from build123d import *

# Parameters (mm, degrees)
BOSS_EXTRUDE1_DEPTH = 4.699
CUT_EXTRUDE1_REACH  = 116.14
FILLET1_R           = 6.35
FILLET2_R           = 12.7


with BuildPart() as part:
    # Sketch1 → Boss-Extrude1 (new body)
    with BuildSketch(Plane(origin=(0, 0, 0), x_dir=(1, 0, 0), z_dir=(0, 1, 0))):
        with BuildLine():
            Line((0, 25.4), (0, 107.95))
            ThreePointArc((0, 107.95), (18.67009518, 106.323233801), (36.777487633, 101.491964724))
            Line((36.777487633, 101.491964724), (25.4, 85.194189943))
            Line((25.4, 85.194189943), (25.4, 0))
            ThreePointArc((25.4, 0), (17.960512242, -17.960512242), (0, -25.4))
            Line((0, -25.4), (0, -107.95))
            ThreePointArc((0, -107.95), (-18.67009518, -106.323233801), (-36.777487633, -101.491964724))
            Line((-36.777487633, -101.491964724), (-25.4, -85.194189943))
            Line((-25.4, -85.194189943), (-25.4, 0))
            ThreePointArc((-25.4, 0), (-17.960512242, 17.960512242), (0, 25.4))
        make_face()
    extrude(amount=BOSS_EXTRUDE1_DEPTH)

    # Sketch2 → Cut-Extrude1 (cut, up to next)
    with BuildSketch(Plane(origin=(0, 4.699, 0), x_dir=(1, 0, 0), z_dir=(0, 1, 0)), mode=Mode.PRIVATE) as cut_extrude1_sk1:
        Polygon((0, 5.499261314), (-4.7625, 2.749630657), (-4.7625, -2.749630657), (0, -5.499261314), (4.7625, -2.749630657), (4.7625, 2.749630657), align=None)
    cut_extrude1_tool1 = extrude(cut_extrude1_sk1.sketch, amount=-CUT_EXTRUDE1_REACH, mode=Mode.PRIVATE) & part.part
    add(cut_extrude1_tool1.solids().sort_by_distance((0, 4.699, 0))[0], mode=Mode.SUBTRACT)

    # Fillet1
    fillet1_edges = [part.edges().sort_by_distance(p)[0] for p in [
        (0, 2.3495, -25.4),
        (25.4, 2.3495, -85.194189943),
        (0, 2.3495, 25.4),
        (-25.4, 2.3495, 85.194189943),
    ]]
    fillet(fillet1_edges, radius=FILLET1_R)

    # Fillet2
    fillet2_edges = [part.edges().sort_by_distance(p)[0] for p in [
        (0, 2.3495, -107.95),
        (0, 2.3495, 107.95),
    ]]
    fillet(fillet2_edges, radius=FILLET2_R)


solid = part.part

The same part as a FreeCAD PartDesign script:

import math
import FreeCAD as App
import Part
import Sketcher
from FreeCAD import Vector
Q = App.Units.Quantity


def edges_at(feature, points):
    """Names of the edges that pass closest to the given points."""
    edges = feature.Shape.Edges
    near = lambda p: min(range(len(edges)), key=lambda i: edges[i].distToShape(Part.Vertex(*p))[0])
    return sorted({f"Edge{near(p) + 1}" for p in points})

doc = App.newDocument("Part")
body = doc.addObject("PartDesign::Body", "Body")

# Sketch on XZ plane
sketch1 = body.newObject("Sketcher::SketchObject", "Sketch")
sketch1.AttachmentSupport = (doc.getObject("XZ_Plane"), [""])
sketch1.MapMode = "FlatFace"
sketch1.addGeometry(Part.LineSegment(Vector(0, -107.95, 0), Vector(0, -25.4, 0)), False)
sketch1.addGeometry(Part.ArcOfCircle(Part.Circle(Vector(0, 0, 0), Vector(0, 0, 1), 25.4), math.radians(180), math.radians(270)), False)
sketch1.addGeometry(Part.LineSegment(Vector(-25.4, 0, 0), Vector(-25.4, 85.19419, 0)), False)
sketch1.addGeometry(Part.LineSegment(Vector(-25.4, 85.19419, 0), Vector(-36.777488, 101.491965, 0)), False)
sketch1.addGeometry(Part.ArcOfCircle(Part.Circle(Vector(0, 0, 0), Vector(0, 0, 1), 107.95), math.radians(90), math.radians(109.918919)), False)
sketch1.addGeometry(Part.LineSegment(Vector(0, 107.95, 0), Vector(0, 25.4, 0)), False)
sketch1.addGeometry(Part.ArcOfCircle(Part.Circle(Vector(0, 0, 0), Vector(0, 0, 1), 25.4), math.radians(0), math.radians(90)), False)
sketch1.addGeometry(Part.LineSegment(Vector(25.4, 0, 0), Vector(25.4, -85.19419, 0)), False)
sketch1.addGeometry(Part.LineSegment(Vector(25.4, -85.19419, 0), Vector(36.777488, -101.491965, 0)), False)
sketch1.addGeometry(Part.ArcOfCircle(Part.Circle(Vector(0, 0, 0), Vector(0, 0, 1), 107.95), math.radians(-90), math.radians(-70.081081)), False)
sketch1.addConstraint(Sketcher.Constraint("Coincident", 0, 2, 1, 2))
sketch1.addConstraint(Sketcher.Constraint("Tangent", 1, 1, 2, 1))
sketch1.addConstraint(Sketcher.Constraint("Coincident", 2, 2, 3, 1))
sketch1.addConstraint(Sketcher.Constraint("Coincident", 3, 2, 4, 2))
sketch1.addConstraint(Sketcher.Constraint("Coincident", 4, 1, 5, 1))
sketch1.addConstraint(Sketcher.Constraint("Coincident", 5, 2, 6, 2))
sketch1.addConstraint(Sketcher.Constraint("Tangent", 6, 1, 7, 1))
sketch1.addConstraint(Sketcher.Constraint("Coincident", 7, 2, 8, 1))
sketch1.addConstraint(Sketcher.Constraint("Coincident", 8, 2, 9, 2))
sketch1.addConstraint(Sketcher.Constraint("Coincident", 9, 1, 0, 1))
sketch1.addConstraint(Sketcher.Constraint("Vertical", 0))
sketch1.addConstraint(Sketcher.Constraint("Vertical", 2))
sketch1.addConstraint(Sketcher.Constraint("Vertical", 5))
sketch1.addConstraint(Sketcher.Constraint("Vertical", 7))
sketch1.addConstraint(Sketcher.Constraint("Coincident", 1, 3, -1, 1))
sketch1.addConstraint(Sketcher.Constraint("Coincident", 4, 3, -1, 1))
sketch1.addConstraint(Sketcher.Constraint("Coincident", 6, 3, -1, 1))
sketch1.addConstraint(Sketcher.Constraint("Coincident", 9, 3, -1, 1))
sketch1.addConstraint(Sketcher.Constraint("Equal", 1, 6))
sketch1.addConstraint(Sketcher.Constraint("Equal", 4, 9))
sketch1.addConstraint(Sketcher.Constraint("PointOnObject", 0, 2, -2))
sketch1.addConstraint(Sketcher.Constraint("PointOnObject", 4, 1, -2))
sketch1.addConstraint(Sketcher.Constraint("Parallel", 3, 8))
sketch1.addConstraint(Sketcher.Constraint("Equal", 2, 7))
sketch1.addConstraint(Sketcher.Constraint("Radius", 1, Q("1 in")))
sketch1.addConstraint(Sketcher.Constraint("Radius", 4, Q("4.25 in")))
sketch1.addConstraint(Sketcher.Constraint("DistanceY", 2, 1, 2, 2, 85.19419))
sketch1.addConstraint(Sketcher.Constraint("Distance", 3, 19.876234))
pad1 = body.newObject("PartDesign::Pad", "Pad")
pad1.Profile = sketch1
pad1.Length = Q("0.185 in")
pad1.Reversed = True

# Sketch on XZ plane
sketch2 = body.newObject("Sketcher::SketchObject", "Sketch001")
sketch2.AttachmentSupport = (doc.getObject("XZ_Plane"), [""])
sketch2.MapMode = "FlatFace"
sketch2.AttachmentOffset = App.Placement(Vector(0, 0, -0.185 * 25.4), App.Rotation())
sketch2.addGeometry(Part.LineSegment(Vector(0, -5.499261, 0), Vector(-4.7625, -2.749631, 0)), False)
sketch2.addGeometry(Part.LineSegment(Vector(-4.7625, -2.749631, 0), Vector(-4.7625, 2.749631, 0)), False)
sketch2.addGeometry(Part.LineSegment(Vector(-4.7625, 2.749631, 0), Vector(0, 5.499261, 0)), False)
sketch2.addGeometry(Part.LineSegment(Vector(0, 5.499261, 0), Vector(4.7625, 2.749631, 0)), False)
sketch2.addGeometry(Part.LineSegment(Vector(4.7625, 2.749631, 0), Vector(4.7625, -2.749631, 0)), False)
sketch2.addGeometry(Part.LineSegment(Vector(4.7625, -2.749631, 0), Vector(0, -5.499261, 0)), False)
sketch2.addConstraint(Sketcher.Constraint("Coincident", 0, 2, 1, 1))
sketch2.addConstraint(Sketcher.Constraint("Coincident", 1, 2, 2, 1))
sketch2.addConstraint(Sketcher.Constraint("Coincident", 2, 2, 3, 1))
sketch2.addConstraint(Sketcher.Constraint("Coincident", 3, 2, 4, 1))
sketch2.addConstraint(Sketcher.Constraint("Coincident", 4, 2, 5, 1))
sketch2.addConstraint(Sketcher.Constraint("Coincident", 5, 2, 0, 1))
sketch2.addConstraint(Sketcher.Constraint("Vertical", 1))
sketch2.addConstraint(Sketcher.Constraint("Vertical", 4))
sketch2.addConstraint(Sketcher.Constraint("Symmetric", 0, 2, 3, 2, -1, 1))
sketch2.addConstraint(Sketcher.Constraint("Symmetric", 2, 2, 5, 2, -1, 1))
sketch2.addConstraint(Sketcher.Constraint("PointOnObject", 2, 2, -2))
sketch2.addConstraint(Sketcher.Constraint("Parallel", 2, 5))
sketch2.addConstraint(Sketcher.Constraint("Horizontal", 1, 2, 3, 2))
sketch2.addConstraint(Sketcher.Constraint("Angle", 0, Q("150 deg")))
sketch2.addConstraint(Sketcher.Constraint("DistanceX", 0, 2, -1, 1, Q("0.1875 in")))
sketch2.addConstraint(Sketcher.Constraint("DistanceY", 1, 1, 1, 2, 5.499261))
pocket1 = body.newObject("PartDesign::Pocket", "Pocket")
pocket1.Profile = sketch2
pocket1.Type = "UpToFirst"
pocket1.Reversed = True
doc.recompute()

fillet = body.newObject("PartDesign::Fillet", "Fillet")
fillet.Base = (pocket1, edges_at(pocket1, [
    (0, 2.349, -25.4),
    (25.4, 2.349, -85.194),
    (0, 2.349, 25.4),
    (-25.4, 2.349, 85.194),
]))
fillet.Radius = Q("0.25 in")
doc.recompute()

fillet2 = body.newObject("PartDesign::Fillet", "Fillet001")
fillet2.Base = (fillet, edges_at(fillet, [(0, 2.349, -107.95), (0, 2.349, 107.95)]))
fillet2.Radius = Q("0.5 in")

doc.recompute()
